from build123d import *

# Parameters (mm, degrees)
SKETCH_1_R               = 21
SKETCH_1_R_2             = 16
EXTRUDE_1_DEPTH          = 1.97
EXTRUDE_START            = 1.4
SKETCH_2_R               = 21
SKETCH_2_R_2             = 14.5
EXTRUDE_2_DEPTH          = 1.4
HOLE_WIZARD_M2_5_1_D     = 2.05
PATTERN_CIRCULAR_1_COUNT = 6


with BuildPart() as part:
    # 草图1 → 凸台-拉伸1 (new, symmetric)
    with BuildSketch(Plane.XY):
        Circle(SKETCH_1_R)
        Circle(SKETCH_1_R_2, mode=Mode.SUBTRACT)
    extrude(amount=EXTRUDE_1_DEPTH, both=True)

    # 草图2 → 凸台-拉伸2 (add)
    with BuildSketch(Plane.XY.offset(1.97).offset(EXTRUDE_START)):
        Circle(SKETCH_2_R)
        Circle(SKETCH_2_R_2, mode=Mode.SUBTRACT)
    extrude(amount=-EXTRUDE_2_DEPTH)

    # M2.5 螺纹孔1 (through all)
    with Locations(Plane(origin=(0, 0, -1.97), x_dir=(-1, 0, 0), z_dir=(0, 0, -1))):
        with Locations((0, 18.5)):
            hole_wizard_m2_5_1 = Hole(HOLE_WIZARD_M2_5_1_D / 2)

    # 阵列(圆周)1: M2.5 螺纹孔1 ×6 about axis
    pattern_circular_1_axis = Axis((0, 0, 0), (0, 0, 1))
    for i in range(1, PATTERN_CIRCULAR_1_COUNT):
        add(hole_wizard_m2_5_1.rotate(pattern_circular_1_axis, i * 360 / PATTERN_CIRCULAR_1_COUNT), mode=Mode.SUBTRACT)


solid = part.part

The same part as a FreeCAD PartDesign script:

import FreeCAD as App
import Part
import Sketcher
Q = App.Units.Quantity

doc = App.newDocument("Part")
body = doc.addObject("PartDesign::Body", "Body")

sketch1 = body.newObject("Sketcher::SketchObject", "Sketch")
sketch1.AttachmentSupport = (doc.getObject("XY_Plane"), [""])
sketch1.MapMode = "FlatFace"
sketch1.addGeometry([
    Part.Circle(App.Vector(0, 0, 0), App.Vector(0, 0, 1), 21),
    Part.Circle(App.Vector(0, 0, 0), App.Vector(0, 0, 1), 16),
], False)
sketch1.addConstraint([
    Sketcher.Constraint("Coincident", 0, 3, -1, 1),
    Sketcher.Constraint("Coincident", 1, 3, -1, 1),
    Sketcher.Constraint("Diameter", 0, Q("42 mm")),
    Sketcher.Constraint("Diameter", 1, Q("32 mm")),
])
pad1 = body.newObject("PartDesign::Pad", "Pad")
pad1.Profile = sketch1
pad1.Length = 3.94
pad1.Midplane = True

sketch2 = body.newObject("Sketcher::SketchObject", "Sketch001")
sketch2.AttachmentSupport = (doc.getObject("XY_Plane"), [""])
sketch2.MapMode = "FlatFace"
sketch2.AttachmentOffset = App.Placement(App.Vector(0, 0, 3.37), App.Rotation())
sketch2.addGeometry([
    Part.Circle(App.Vector(0, 0, 0), App.Vector(0, 0, 1), 21),
    Part.Circle(App.Vector(0, 0, 0), App.Vector(0, 0, 1), 14.5),
], False)
sketch2.addConstraint([
    Sketcher.Constraint("Coincident", 0, 3, -1, 1),
    Sketcher.Constraint("Coincident", 1, 3, -1, 1),
    Sketcher.Constraint("Diameter", 0, Q("42 mm")),
    Sketcher.Constraint("Diameter", 1, Q("29 mm")),
])
pad2 = body.newObject("PartDesign::Pad", "Pad001")
pad2.Profile = sketch2
pad2.Length = 1.4
pad2.Reversed = True

sketch3 = body.newObject("Sketcher::SketchObject", "Sketch002")
sketch3.AttachmentSupport = (doc.getObject("XY_Plane"), [""])
sketch3.MapMode = "FlatFace"
sketch3.AttachmentOffset = App.Placement(App.Vector(0, 0, -1.97), App.Rotation())
sketch3.addGeometry(Part.Circle(App.Vector(0, 18.5, 0), App.Vector(0, 0, 1), 1.025), False)
sketch3.addConstraint([
    Sketcher.Constraint("PointOnObject", 0, 3, -2),
    Sketcher.Constraint("Diameter", 0, Q("2.05 mm")),
    Sketcher.Constraint("DistanceY", -1, 1, 0, 3, Q("18.5 mm")),
])
doc.recompute()
hole = body.newObject("PartDesign::Hole", "Hole")
hole.Profile = sketch3
hole.ThreadType = "None"
hole.Diameter = 2.05
hole.DepthType = "ThroughAll"
hole.Reversed = True
doc.recompute()

polarpattern = body.newObject("PartDesign::PolarPattern", "PolarPattern")
polarpattern.Originals = [hole]
polarpattern.Axis = (doc.getObject("Z_Axis"), [""])
polarpattern.Angle = 360
polarpattern.Occurrences = 6
body.Tip = polarpattern

doc.recompute()
